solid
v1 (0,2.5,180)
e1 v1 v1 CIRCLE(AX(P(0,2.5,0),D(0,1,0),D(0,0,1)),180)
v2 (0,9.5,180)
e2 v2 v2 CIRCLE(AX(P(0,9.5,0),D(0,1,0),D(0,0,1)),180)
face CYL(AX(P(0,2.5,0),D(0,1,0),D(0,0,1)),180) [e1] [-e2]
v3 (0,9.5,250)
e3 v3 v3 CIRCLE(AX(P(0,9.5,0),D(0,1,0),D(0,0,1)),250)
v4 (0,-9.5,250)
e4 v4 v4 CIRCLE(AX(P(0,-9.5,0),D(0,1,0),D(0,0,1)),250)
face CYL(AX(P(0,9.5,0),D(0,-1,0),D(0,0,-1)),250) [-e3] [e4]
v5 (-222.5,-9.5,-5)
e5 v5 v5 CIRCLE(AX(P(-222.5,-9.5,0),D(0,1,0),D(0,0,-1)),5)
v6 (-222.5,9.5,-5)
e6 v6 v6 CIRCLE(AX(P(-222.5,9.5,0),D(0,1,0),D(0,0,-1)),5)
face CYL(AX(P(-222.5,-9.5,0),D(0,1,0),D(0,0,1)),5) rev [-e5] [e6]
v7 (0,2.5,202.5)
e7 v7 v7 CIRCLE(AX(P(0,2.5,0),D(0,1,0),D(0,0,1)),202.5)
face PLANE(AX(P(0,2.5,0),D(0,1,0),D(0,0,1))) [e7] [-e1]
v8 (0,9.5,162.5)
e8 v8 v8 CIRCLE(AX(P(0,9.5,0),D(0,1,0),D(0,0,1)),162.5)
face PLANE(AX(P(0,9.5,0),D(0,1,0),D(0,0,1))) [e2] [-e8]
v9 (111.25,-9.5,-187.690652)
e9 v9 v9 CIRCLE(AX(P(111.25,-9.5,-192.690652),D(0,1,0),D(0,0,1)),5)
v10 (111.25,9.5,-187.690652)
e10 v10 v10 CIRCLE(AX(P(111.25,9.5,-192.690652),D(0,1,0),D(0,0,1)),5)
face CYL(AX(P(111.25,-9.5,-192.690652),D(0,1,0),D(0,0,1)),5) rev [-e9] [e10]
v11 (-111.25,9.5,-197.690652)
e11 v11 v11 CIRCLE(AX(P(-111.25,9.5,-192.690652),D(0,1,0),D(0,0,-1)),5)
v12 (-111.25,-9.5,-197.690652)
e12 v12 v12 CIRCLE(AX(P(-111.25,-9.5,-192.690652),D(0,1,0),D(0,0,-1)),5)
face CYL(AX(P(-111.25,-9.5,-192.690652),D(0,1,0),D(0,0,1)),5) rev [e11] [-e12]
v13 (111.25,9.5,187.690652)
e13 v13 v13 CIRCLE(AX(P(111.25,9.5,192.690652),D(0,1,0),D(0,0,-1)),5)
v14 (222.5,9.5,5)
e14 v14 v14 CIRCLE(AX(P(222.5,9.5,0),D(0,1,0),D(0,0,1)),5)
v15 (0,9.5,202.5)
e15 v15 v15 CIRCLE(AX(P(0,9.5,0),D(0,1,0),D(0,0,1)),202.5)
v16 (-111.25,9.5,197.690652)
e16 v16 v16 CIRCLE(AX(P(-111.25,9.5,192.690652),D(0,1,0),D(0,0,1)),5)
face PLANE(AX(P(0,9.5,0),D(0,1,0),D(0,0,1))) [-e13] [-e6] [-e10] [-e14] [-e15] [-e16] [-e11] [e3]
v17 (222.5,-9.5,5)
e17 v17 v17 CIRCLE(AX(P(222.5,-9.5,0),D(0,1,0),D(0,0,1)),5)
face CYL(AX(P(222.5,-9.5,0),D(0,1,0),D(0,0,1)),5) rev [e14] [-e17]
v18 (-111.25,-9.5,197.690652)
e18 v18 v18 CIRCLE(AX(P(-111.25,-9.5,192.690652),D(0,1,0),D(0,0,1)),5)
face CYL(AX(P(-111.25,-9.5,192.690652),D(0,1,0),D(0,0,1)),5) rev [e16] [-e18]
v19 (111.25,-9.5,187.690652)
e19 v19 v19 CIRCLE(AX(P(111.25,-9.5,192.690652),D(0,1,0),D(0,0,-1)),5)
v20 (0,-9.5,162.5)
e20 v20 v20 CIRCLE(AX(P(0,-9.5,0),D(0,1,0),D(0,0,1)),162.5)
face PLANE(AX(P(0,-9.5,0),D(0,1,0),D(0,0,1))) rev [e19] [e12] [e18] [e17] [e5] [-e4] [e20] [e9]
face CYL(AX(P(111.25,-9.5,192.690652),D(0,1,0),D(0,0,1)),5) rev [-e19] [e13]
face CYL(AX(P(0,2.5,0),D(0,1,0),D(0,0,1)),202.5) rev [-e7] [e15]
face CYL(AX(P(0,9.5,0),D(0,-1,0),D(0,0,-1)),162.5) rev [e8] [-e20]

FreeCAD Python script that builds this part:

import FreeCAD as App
import Part
import Sketcher
from FreeCAD import Vector
Q = App.Units.Quantity

doc = App.newDocument("Part")
body = doc.addObject("PartDesign::Body", "Body")

sketch1 = body.newObject("Sketcher::SketchObject", "Sketch")
sketch1.AttachmentSupport = (doc.getObject("XZ_Plane"), [""])
sketch1.MapMode = "FlatFace"
sketch1.addGeometry(Part.Circle(Vector(0, 0, 0), Vector(0, 0, 1), 250), False)
sketch1.addGeometry(Part.Circle(Vector(0, 0, 0), Vector(0, 0, 1), 162), False)
sketch1.addConstraint(Sketcher.Constraint("Coincident", 0, 3, -1, 1))
sketch1.addConstraint(Sketcher.Constraint("Coincident", 1, 3, -1, 1))
sketch1.addConstraint(Sketcher.Constraint("Diameter", 0, Q("500 mm")))
sketch1.addConstraint(Sketcher.Constraint("Diameter", 1, Q("325 mm")))
pad1 = body.newObject("PartDesign::Pad", "Pad")
pad1.Profile = sketch1
pad1.Length = 19
pad1.Midplane = True

sketch2 = body.newObject("Sketcher::SketchObject", "Sketch001")
sketch2.AttachmentSupport = (doc.getObject("XZ_Plane"), [""])
sketch2.MapMode = "FlatFace"
sketch2.AttachmentOffset = App.Placement(Vector(0, 0, -9.5), App.Rotation())
sketch2.addGeometry(Part.Circle(Vector(0, 0, 0), Vector(0, 0, 1), 202), False)
sketch2.addGeometry(Part.Circle(Vector(0, 0, 0), Vector(0, 0, 1), 180), False)
sketch2.addConstraint(Sketcher.Constraint("Coincident", 0, 3, -1, 1))
sketch2.addConstraint(Sketcher.Constraint("Coincident", 1, 3, -1, 1))
sketch2.addConstraint(Sketcher.Constraint("Diameter", 0, Q("405 mm")))
sketch2.addConstraint(Sketcher.Constraint("Diameter", 1, Q("360 mm")))
pocket1 = body.newObject("PartDesign::Pocket", "Pocket")
pocket1.Profile = sketch2
pocket1.Length = 7
pocket1.Reversed = True

sketch3 = body.newObject("Sketcher::SketchObject", "Sketch002")
sketch3.AttachmentSupport = (doc.getObject("XZ_Plane"), [""])
sketch3.MapMode = "FlatFace"
sketch3.AttachmentOffset = App.Placement(Vector(0, 0, -9.5), App.Rotation())
sketch3.addGeometry(Part.Circle(Vector(111, -193, 0), Vector(0, 0, 1), 5), False)
sketch3.addGeometry(Part.Circle(Vector(222, 0, 0), Vector(0, 0, 1), 5), False)
sketch3.addGeometry(Part.Circle(Vector(-222, 0, 0), Vector(0, 0, 1), 5), False)
sketch3.addGeometry(Part.Circle(Vector(-111, -193, 0), Vector(0, 0, 1), 5), False)
sketch3.addGeometry(Part.Circle(Vector(111, 193, 0), Vector(0, 0, 1), 5), False)
sketch3.addGeometry(Part.Circle(Vector(-111, 193, 0), Vector(0, 0, 1), 5), False)
sketch3.addConstraint(Sketcher.Constraint("Equal", 0, 1))
sketch3.addConstraint(Sketcher.Constraint("Equal", 1, 2))
sketch3.addConstraint(Sketcher.Constraint("Equal", 2, 3))
sketch3.addConstraint(Sketcher.Constraint("Equal", 3, 4))
sketch3.addConstraint(Sketcher.Constraint("Equal", 4, 5))
sketch3.addConstraint(Sketcher.Constraint("Symmetric", 1, 3, 2, 3, -1, 1))
sketch3.addConstraint(Sketcher.Constraint("Symmetric", 3, 3, 4, 3, -1, 1))
sketch3.addConstraint(Sketcher.Constraint("Symmetric", 0, 3, 5, 3, -1, 1))
sketch3.addConstraint(Sketcher.Constraint("Symmetric", 0, 3, 3, 3, -2))
sketch3.addConstraint(Sketcher.Constraint("PointOnObject", 1, 3, -1))
sketch3.addConstraint(Sketcher.Constraint("Diameter", 0, Q("10 mm")))
sketch3.addConstraint(Sketcher.Constraint("DistanceX", 2, 3, 1, 3, Q("445 mm")))
sketch3.addConstraint(Sketcher.Constraint("DistanceX", 3, 3, 0, 3, Q("222.5 mm")))
sketch3.addConstraint(Sketcher.Constraint("DistanceY", 0, 3, -1, 1, Q("192.690652 mm")))
pocket2 = body.newObject("PartDesign::Pocket", "Pocket001")
pocket2.Profile = sketch3
pocket2.Type = "ThroughAll"
pocket2.Reversed = True

doc.recompute()
